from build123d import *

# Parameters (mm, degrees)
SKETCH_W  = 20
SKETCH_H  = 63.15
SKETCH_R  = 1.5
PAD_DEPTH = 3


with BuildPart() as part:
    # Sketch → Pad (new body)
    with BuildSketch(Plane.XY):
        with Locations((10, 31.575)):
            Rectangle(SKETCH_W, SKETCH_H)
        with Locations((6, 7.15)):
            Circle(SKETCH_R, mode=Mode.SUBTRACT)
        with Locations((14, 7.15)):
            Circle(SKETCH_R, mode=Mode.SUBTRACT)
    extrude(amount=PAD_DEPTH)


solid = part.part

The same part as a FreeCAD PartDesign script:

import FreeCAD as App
import Part
import Sketcher
from FreeCAD import Vector
Q = App.Units.Quantity

doc = App.newDocument("Part")
params = doc.addObject("Spreadsheet::Sheet", "Params")
for row, (alias, value) in enumerate([
    ("sketch1_diameter", "3 mm"),
    ("sketch1_width", "20 mm"),
    ("sketch1_height", "63.15 mm"),
    ("pad1_length", "3 mm"),
], start=1):
    params.set(f"A{row}", alias)
    params.set(f"B{row}", "=" + value)
    params.setAlias(f"B{row}", alias)

body = doc.addObject("PartDesign::Body", "Body")

# Sketch on XY plane
sketch1 = body.newObject("Sketcher::SketchObject", "Sketch")
sketch1.AttachmentSupport = (doc.getObject("XY_Plane"), [""])
sketch1.MapMode = "FlatFace"
sketch1.addGeometry(Part.LineSegment(Vector(0, 63.1, 0), Vector(0, 0, 0)), False)
sketch1.addGeometry(Part.LineSegment(Vector(0, 0, 0), Vector(20, 0, 0)), False)
sketch1.addGeometry(Part.LineSegment(Vector(20, 0, 0), Vector(20, 63.1, 0)), False)
sketch1.addGeometry(Part.LineSegment(Vector(20, 63.1, 0), Vector(0, 63.1, 0)), False)
sketch1.addGeometry(Part.Circle(Vector(6, 7.2, 0), Vector(0, 0, 1), 1.5), False)
sketch1.addGeometry(Part.Circle(Vector(14, 7.2, 0), Vector(0, 0, 1), 1.5), False)
sketch1.addConstraint(Sketcher.Constraint("Coincident", 0, 2, 1, 1))
sketch1.addConstraint(Sketcher.Constraint("Coincident", 1, 2, 2, 1))
sketch1.addConstraint(Sketcher.Constraint("Coincident", 2, 2, 3, 1))
sketch1.addConstraint(Sketcher.Constraint("Coincident", 3, 2, 0, 1))
sketch1.addConstraint(Sketcher.Constraint("Vertical", 0))
sketch1.addConstraint(Sketcher.Constraint("Horizontal", 1))
sketch1.addConstraint(Sketcher.Constraint("Vertical", 2))
sketch1.addConstraint(Sketcher.Constraint("Horizontal", 3))
sketch1.addConstraint(Sketcher.Constraint("Coincident", 0, 2, -1, 1))
sketch1.addConstraint(Sketcher.Constraint("Equal", 4, 5))
sketch1.addConstraint(Sketcher.Constraint("Horizontal", 4, 3, 5, 3))
sketch1.addConstraint(Sketcher.Constraint("Diameter", 4, Q("3 mm")))
sketch1.addConstraint(Sketcher.Constraint("DistanceX", 1, 1, 1, 2, Q("20 mm")))
sketch1.addConstraint(Sketcher.Constraint("DistanceX", -1, 1, 4, 3, Q("6 mm")))
sketch1.addConstraint(Sketcher.Constraint("DistanceX", -1, 1, 5, 3, Q("14 mm")))
sketch1.addConstraint(Sketcher.Constraint("DistanceY", 5, 3, 2, 2, Q("56 mm")))
sketch1.addConstraint(Sketcher.Constraint("DistanceY", 0, 2, 0, 1, Q("63.15 mm")))
sketch1.setExpression("Constraints[11]", "Params.sketch1_diameter")
sketch1.setExpression("Constraints[12]", "Params.sketch1_width")
sketch1.setExpression("Constraints[16]", "Params.sketch1_height")
pad1 = body.newObject("PartDesign::Pad", "Pad")
pad1.Profile = sketch1
pad1.setExpression("Length", "Params.pad1_length")

doc.recompute()
